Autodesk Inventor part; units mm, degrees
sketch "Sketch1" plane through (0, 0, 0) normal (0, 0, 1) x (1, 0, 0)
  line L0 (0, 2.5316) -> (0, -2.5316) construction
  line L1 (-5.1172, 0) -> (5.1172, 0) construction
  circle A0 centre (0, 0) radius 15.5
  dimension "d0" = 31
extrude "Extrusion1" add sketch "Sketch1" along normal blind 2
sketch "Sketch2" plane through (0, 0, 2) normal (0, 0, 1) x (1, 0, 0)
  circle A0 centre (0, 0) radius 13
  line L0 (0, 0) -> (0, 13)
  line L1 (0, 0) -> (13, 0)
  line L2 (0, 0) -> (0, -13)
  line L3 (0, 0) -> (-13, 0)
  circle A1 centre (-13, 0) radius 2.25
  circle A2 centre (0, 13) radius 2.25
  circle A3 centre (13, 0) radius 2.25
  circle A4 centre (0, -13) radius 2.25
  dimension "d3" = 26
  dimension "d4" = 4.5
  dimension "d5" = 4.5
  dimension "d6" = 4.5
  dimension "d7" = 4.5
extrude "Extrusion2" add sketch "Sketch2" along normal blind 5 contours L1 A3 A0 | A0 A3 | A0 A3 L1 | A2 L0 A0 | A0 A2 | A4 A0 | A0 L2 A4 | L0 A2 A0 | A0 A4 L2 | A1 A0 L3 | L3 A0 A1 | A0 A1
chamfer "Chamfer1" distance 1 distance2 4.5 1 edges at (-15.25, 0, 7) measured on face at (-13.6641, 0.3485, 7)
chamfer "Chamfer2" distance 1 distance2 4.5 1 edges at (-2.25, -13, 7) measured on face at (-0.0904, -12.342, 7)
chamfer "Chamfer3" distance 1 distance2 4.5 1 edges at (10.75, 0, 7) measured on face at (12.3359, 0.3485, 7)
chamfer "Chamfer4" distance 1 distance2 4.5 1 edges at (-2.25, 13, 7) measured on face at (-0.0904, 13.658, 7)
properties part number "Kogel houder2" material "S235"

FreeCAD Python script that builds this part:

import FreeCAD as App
import Part
import Sketcher


def edges_at(feature, points):
    """Names of the edges that pass closest to the given points."""
    edges = feature.Shape.Edges
    near = lambda p: min(range(len(edges)), key=lambda i: edges[i].distToShape(Part.Vertex(*p))[0])
    return sorted({f"Edge{near(p) + 1}" for p in points})

doc = App.newDocument("Part")
body = doc.addObject("PartDesign::Body", "Body")

# Sketch on XY plane
sketch1 = body.newObject("Sketcher::SketchObject", "Sketch")
sketch1.AttachmentSupport = (doc.getObject("XY_Plane"), [""])
sketch1.MapMode = "FlatFace"
sketch1.addGeometry(Part.Circle(App.Vector(0, 0, 0), App.Vector(0, 0, 1), 15.5), False)
sketch1.addConstraint([
    Sketcher.Constraint("Coincident", 0, 3, -1, 1),
    Sketcher.Constraint("Diameter", 0, 31.0),
])
pad1 = body.newObject("PartDesign::Pad", "Pad")
pad1.Profile = sketch1
pad1.Length = 2

# Sketch on XY plane
sketch2 = body.newObject("Sketcher::SketchObject", "Sketch001")
sketch2.AttachmentSupport = (doc.getObject("XY_Plane"), [""])
sketch2.MapMode = "FlatFace"
sketch2.AttachmentOffset = App.Placement(App.Vector(0, 0, 2), App.Rotation())
sketch2.addGeometry([
    Part.Circle(App.Vector(13, 0, 0), App.Vector(0, 0, 1), 2.25),
    Part.Circle(App.Vector(0, 13, 0), App.Vector(0, 0, 1), 2.25),
    Part.Circle(App.Vector(0, -13, 0), App.Vector(0, 0, 1), 2.25),
    Part.Circle(App.Vector(-13, 0, 0), App.Vector(0, 0, 1), 2.25),
], False)
sketch2.addConstraint([
    Sketcher.Constraint("Equal", 0, 1),
    Sketcher.Constraint("Equal", 1, 2),
    Sketcher.Constraint("Equal", 2, 3),
    Sketcher.Constraint("Symmetric", 1, 3, 2, 3, -1, 1),
    Sketcher.Constraint("Symmetric", 0, 3, 3, 3, -1, 1),
    Sketcher.Constraint("PointOnObject", 0, 3, -1),
    Sketcher.Constraint("PointOnObject", 1, 3, -2),
    Sketcher.Constraint("Diameter", 0, 4.5),
    Sketcher.Constraint("DistanceY", 2, 3, 1, 3, 26.0),
    Sketcher.Constraint("DistanceX", 3, 3, 0, 3, 26.0),
])
pad2 = body.newObject("PartDesign::Pad", "Pad001")
pad2.Profile = sketch2
pad2.Length = 5
doc.recompute()

chamfer = body.newObject("PartDesign::Chamfer", "Chamfer")
chamfer.Base = (pad2, edges_at(pad2, [(-15.25, 0, 7)]))
chamfer.ChamferType = "Two distances"
chamfer.Size = 1
chamfer.Size2 = 4.5
chamfer.FlipDirection = True
doc.recompute()

chamfer2 = body.newObject("PartDesign::Chamfer", "Chamfer001")
chamfer2.Base = (chamfer, edges_at(chamfer, [(-2.25, -13, 7)]))
chamfer2.ChamferType = "Two distances"
chamfer2.Size = 1
chamfer2.Size2 = 4.5
chamfer2.FlipDirection = True
doc.recompute()

chamfer3 = body.newObject("PartDesign::Chamfer", "Chamfer002")
chamfer3.Base = (chamfer2, edges_at(chamfer2, [(10.75, 0, 7)]))
chamfer3.ChamferType = "Two distances"
chamfer3.Size = 1
chamfer3.Size2 = 4.5
chamfer3.FlipDirection = True
doc.recompute()

chamfer4 = body.newObject("PartDesign::Chamfer", "Chamfer003")
chamfer4.Base = (chamfer3, edges_at(chamfer3, [(-2.25, 13, 7)]))
chamfer4.ChamferType = "Two distances"
chamfer4.Size = 1
chamfer4.Size2 = 4.5
chamfer4.FlipDirection = True

doc.recompute()
